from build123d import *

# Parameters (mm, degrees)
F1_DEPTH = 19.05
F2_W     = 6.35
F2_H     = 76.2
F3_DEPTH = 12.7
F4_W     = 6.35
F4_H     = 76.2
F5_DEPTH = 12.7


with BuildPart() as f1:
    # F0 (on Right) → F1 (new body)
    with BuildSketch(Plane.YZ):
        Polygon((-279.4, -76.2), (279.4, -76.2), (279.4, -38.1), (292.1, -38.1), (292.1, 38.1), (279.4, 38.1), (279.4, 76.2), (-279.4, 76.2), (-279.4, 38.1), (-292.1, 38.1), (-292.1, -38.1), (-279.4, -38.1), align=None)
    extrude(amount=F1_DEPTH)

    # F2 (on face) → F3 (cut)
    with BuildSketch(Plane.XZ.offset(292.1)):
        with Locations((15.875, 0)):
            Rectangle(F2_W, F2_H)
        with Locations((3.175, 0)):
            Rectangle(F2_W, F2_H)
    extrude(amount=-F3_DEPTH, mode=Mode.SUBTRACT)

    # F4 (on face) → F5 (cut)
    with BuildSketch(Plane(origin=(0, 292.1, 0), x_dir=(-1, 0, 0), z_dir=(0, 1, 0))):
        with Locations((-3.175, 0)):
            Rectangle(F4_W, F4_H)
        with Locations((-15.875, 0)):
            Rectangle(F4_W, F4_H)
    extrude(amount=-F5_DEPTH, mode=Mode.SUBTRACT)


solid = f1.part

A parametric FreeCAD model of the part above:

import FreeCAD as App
import Part
import Sketcher
from FreeCAD import Vector
Q = App.Units.Quantity


def add_polygon(sketch, points):
    """Adds a closed chain of lines whose ends are joined by coincident constraints."""
    first, n = sketch.GeometryCount, len(points)
    for a, b in zip(points, points[1:] + points[:1]):
        sketch.addGeometry(Part.LineSegment(App.Vector(*a, 0), App.Vector(*b, 0)), False)
    for i in range(n):
        sketch.addConstraint(Sketcher.Constraint("Coincident", first + i, 2, first + (i + 1) % n, 1))

doc = App.newDocument("Part")
body = doc.addObject("PartDesign::Body", "Body")

sketch1 = body.newObject("Sketcher::SketchObject", "Sketch")
sketch1.AttachmentSupport = (doc.getObject("YZ_Plane"), [""])
sketch1.MapMode = "FlatFace"
add_polygon(sketch1, [(-279.4, -76.2), (279.4, -76.2), (279.4, -38.1), (292.1, -38.1), (292.1, 38.1), (279.4, 38.1), (279.4, 76.2), (-279.4, 76.2), (-279.4, 38.1), (-292.1, 38.1), (-292.1, -38.1), (-279.4, -38.1)])
sketch1.addConstraint(Sketcher.Constraint("Horizontal", 0))
sketch1.addConstraint(Sketcher.Constraint("Vertical", 1))
sketch1.addConstraint(Sketcher.Constraint("Horizontal", 2))
sketch1.addConstraint(Sketcher.Constraint("Vertical", 3))
sketch1.addConstraint(Sketcher.Constraint("Horizontal", 4))
sketch1.addConstraint(Sketcher.Constraint("Vertical", 5))
sketch1.addConstraint(Sketcher.Constraint("Horizontal", 6))
sketch1.addConstraint(Sketcher.Constraint("Vertical", 7))
sketch1.addConstraint(Sketcher.Constraint("Horizontal", 8))
sketch1.addConstraint(Sketcher.Constraint("Vertical", 9))
sketch1.addConstraint(Sketcher.Constraint("Horizontal", 10))
sketch1.addConstraint(Sketcher.Constraint("Vertical", 11))
sketch1.addConstraint(Sketcher.Constraint("Symmetric", 0, 2, 6, 2, -1, 1))
sketch1.addConstraint(Sketcher.Constraint("Symmetric", 2, 2, 8, 2, -1, 1))
sketch1.addConstraint(Sketcher.Constraint("Symmetric", 4, 2, 10, 2, -1, 1))
sketch1.addConstraint(Sketcher.Constraint("Symmetric", 4, 2, 7, 2, -2))
sketch1.addConstraint(Sketcher.Constraint("DistanceX", 0, 1, 0, 2, Q("22 in")))
sketch1.addConstraint(Sketcher.Constraint("DistanceY", 3, 1, 3, 2, Q("3 in")))
sketch1.addConstraint(Sketcher.Constraint("DistanceX", 2, 1, 2, 2, Q("0.5 in")))
sketch1.addConstraint(Sketcher.Constraint("DistanceY", 1, 1, 1, 2, Q("1.5 in")))
pad1 = body.newObject("PartDesign::Pad", "Pad")
pad1.Profile = sketch1
pad1.Length = Q("0.75 in")

sketch2 = body.newObject("Sketcher::SketchObject", "Sketch001")
sketch2.AttachmentSupport = (doc.getObject("XZ_Plane"), [""])
sketch2.MapMode = "FlatFace"
sketch2.AttachmentOffset = App.Placement(Vector(0, 0, 11.5 * 25.4), App.Rotation())
add_polygon(sketch2, [(12.7, 38.1), (12.7, -38.1), (19.05, -38.1), (19.05, 38.1)])
add_polygon(sketch2, [(0, 38.1), (0, -38.1), (6.35, -38.1), (6.35, 38.1)])
sketch2.addConstraint(Sketcher.Constraint("Vertical", 0))
sketch2.addConstraint(Sketcher.Constraint("Horizontal", 1))
sketch2.addConstraint(Sketcher.Constraint("Vertical", 2))
sketch2.addConstraint(Sketcher.Constraint("Horizontal", 3))
sketch2.addConstraint(Sketcher.Constraint("Vertical", 4))
sketch2.addConstraint(Sketcher.Constraint("Horizontal", 5))
sketch2.addConstraint(Sketcher.Constraint("Vertical", 6))
sketch2.addConstraint(Sketcher.Constraint("Horizontal", 7))
sketch2.addConstraint(Sketcher.Constraint("Symmetric", 4, 2, 7, 2, -1, 1))
sketch2.addConstraint(Sketcher.Constraint("Horizontal", 1, 2, 4, 2))
sketch2.addConstraint(Sketcher.Constraint("Horizontal", 3, 2, 6, 2))
sketch2.addConstraint(Sketcher.Constraint("Equal", 3, 5))
sketch2.addConstraint(Sketcher.Constraint("DistanceY", 0, 2, 0, 1, Q("3 in")))
sketch2.addConstraint(Sketcher.Constraint("DistanceX", 1, 1, 1, 2, Q("0.25 in")))
sketch2.addConstraint(Sketcher.Constraint("DistanceX", -1, 1, 0, 2, Q("0.5 in")))
pocket1 = body.newObject("PartDesign::Pocket", "Pocket")
pocket1.Profile = sketch2
pocket1.Length = Q("0.5 in")

sketch3 = body.newObject("Sketcher::SketchObject", "Sketch002")
sketch3.AttachmentSupport = (doc.getObject("XZ_Plane"), [""])
sketch3.MapMode = "FlatFace"
sketch3.AttachmentOffset = App.Placement(Vector(0, 0, -11.5 * 25.4), App.Rotation())
add_polygon(sketch3, [(6.35, 38.1), (6.35, -38.1), (0, -38.1), (0, 38.1)])
add_polygon(sketch3, [(19.05, 38.1), (19.05, -38.1), (12.7, -38.1), (12.7, 38.1)])
sketch3.addConstraint(Sketcher.Constraint("Vertical", 0))
sketch3.addConstraint(Sketcher.Constraint("Horizontal", 1))
sketch3.addConstraint(Sketcher.Constraint("Vertical", 2))
sketch3.addConstraint(Sketcher.Constraint("Horizontal", 3))
sketch3.addConstraint(Sketcher.Constraint("Vertical", 4))
sketch3.addConstraint(Sketcher.Constraint("Horizontal", 5))
sketch3.addConstraint(Sketcher.Constraint("Vertical", 6))
sketch3.addConstraint(Sketcher.Constraint("Horizontal", 7))
sketch3.addConstraint(Sketcher.Constraint("Symmetric", 1, 2, 2, 2, -1, 1))
sketch3.addConstraint(Sketcher.Constraint("Horizontal", 1, 2, 4, 2))
sketch3.addConstraint(Sketcher.Constraint("Horizontal", 3, 2, 6, 2))
sketch3.addConstraint(Sketcher.Constraint("Equal", 3, 5))
sketch3.addConstraint(Sketcher.Constraint("DistanceY", 0, 2, 0, 1, Q("3 in")))
sketch3.addConstraint(Sketcher.Constraint("DistanceX", 1, 2, 1, 1, Q("0.25 in")))
sketch3.addConstraint(Sketcher.Constraint("DistanceX", -1, 1, 5, 2, Q("0.5 in")))
pocket2 = body.newObject("PartDesign::Pocket", "Pocket001")
pocket2.Profile = sketch3
pocket2.Length = Q("0.5 in")
pocket2.Reversed = True

doc.recompute()
